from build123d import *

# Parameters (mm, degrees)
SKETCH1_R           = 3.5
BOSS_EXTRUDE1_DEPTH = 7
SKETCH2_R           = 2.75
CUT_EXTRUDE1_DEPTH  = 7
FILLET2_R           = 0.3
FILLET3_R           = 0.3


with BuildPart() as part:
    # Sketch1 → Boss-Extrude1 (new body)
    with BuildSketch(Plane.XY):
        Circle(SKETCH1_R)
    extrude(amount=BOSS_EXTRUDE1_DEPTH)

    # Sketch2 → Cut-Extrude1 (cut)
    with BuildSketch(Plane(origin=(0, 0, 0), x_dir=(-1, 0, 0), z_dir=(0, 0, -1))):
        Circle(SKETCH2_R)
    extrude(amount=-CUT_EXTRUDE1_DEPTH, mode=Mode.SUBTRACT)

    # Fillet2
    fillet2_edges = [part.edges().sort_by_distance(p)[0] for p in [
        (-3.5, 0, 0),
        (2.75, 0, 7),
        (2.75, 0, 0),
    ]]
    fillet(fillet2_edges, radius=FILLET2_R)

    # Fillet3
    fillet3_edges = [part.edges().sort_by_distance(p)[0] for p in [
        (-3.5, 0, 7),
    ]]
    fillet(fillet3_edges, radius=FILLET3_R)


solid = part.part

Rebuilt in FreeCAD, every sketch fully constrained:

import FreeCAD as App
import Part
import Sketcher


def edges_at(feature, points):
    """Names of the edges that pass closest to the given points."""
    edges = feature.Shape.Edges
    near = lambda p: min(range(len(edges)), key=lambda i: edges[i].distToShape(Part.Vertex(*p))[0])
    return sorted({f"Edge{near(p) + 1}" for p in points})

doc = App.newDocument("Part")
body = doc.addObject("PartDesign::Body", "Body")

sketch1 = doc.addObject("Sketcher::SketchObject", "Sketch")
body.addObject(sketch1)
sketch1.AttachmentSupport = (doc.XY_Plane, [""])
sketch1.MapMode = "FlatFace"
sketch1.addGeometry(Part.Circle(App.Vector(0, 0, 0), App.Vector(0, 0, 1), 3.5), False)
sketch1.addConstraint([
    Sketcher.Constraint("Coincident", 0, 3, -1, 1),
    Sketcher.Constraint("Diameter", 0, 7.0),
])
pad1 = doc.addObject("PartDesign::Pad", "Pad")
body.addObject(pad1)
pad1.Profile = sketch1
pad1.Length = 7

sketch2 = doc.addObject("Sketcher::SketchObject", "Sketch001")
body.addObject(sketch2)
sketch2.AttachmentSupport = (doc.XY_Plane, [""])
sketch2.MapMode = "FlatFace"
sketch2.addGeometry(Part.Circle(App.Vector(0, 0, 0), App.Vector(0, 0, 1), 2.8), False)
sketch2.addConstraint([
    Sketcher.Constraint("Coincident", 0, 3, -1, 1),
    Sketcher.Constraint("Diameter", 0, 5.5),
])
pocket1 = doc.addObject("PartDesign::Pocket", "Pocket")
body.addObject(pocket1)
pocket1.Profile = sketch2
pocket1.Length = 7
pocket1.Reversed = True
doc.recompute()

fillet = doc.addObject("PartDesign::Fillet", "Fillet")
body.addObject(fillet)
fillet.Base = (pocket1, edges_at(pocket1, [(-3.5, 0, 0), (2.75, 0, 7), (2.75, 0, 0)]))
fillet.Radius = 0.3
doc.recompute()

fillet2 = doc.addObject("PartDesign::Fillet", "Fillet001")
body.addObject(fillet2)
fillet2.Base = (fillet, edges_at(fillet, [(-3.5, 0, 7)]))
fillet2.Radius = 0.3

doc.recompute()
